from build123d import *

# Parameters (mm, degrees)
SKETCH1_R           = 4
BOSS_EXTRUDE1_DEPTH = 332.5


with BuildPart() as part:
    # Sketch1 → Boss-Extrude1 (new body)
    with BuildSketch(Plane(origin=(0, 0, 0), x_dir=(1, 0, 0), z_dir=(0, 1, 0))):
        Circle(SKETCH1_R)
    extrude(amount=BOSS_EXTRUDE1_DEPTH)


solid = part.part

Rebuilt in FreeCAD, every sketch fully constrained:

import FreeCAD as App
import Part
import Sketcher

V = App.Vector
Q = App.Units.Quantity

doc = App.newDocument("Part")
params = doc.addObject("Spreadsheet::Sheet", "Params")
for row, (alias, value) in enumerate([
    ("sketch1_diameter", "8 mm"),
    ("pad1_length", "332.5 mm"),
], start=1):
    params.set(f"A{row}", alias)
    params.set(f"B{row}", "=" + value)
    params.setAlias(f"B{row}", alias)

body = doc.addObject("PartDesign::Body", "Body")

# Sketch on XZ plane
sketch1 = doc.addObject("Sketcher::SketchObject", "Sketch")
body.addObject(sketch1)
sketch1.AttachmentSupport = (doc.XZ_Plane, [""])
sketch1.MapMode = "FlatFace"
sketch1.addGeometry(Part.Circle(V(0, 0, 0), V(0, 0, 1), 4), False)
sketch1.addConstraint([
    Sketcher.Constraint("Coincident", 0, 3, -1, 1),
    Sketcher.Constraint("Diameter", 0, Q("8 mm")),
])
sketch1.setExpression("Constraints[1]", "Params.sketch1_diameter")
pad1 = doc.addObject("PartDesign::Pad", "Pad")
body.addObject(pad1)
pad1.Profile = sketch1
pad1.setExpression("Length", "Params.pad1_length")
pad1.Reversed = True

doc.recompute()
